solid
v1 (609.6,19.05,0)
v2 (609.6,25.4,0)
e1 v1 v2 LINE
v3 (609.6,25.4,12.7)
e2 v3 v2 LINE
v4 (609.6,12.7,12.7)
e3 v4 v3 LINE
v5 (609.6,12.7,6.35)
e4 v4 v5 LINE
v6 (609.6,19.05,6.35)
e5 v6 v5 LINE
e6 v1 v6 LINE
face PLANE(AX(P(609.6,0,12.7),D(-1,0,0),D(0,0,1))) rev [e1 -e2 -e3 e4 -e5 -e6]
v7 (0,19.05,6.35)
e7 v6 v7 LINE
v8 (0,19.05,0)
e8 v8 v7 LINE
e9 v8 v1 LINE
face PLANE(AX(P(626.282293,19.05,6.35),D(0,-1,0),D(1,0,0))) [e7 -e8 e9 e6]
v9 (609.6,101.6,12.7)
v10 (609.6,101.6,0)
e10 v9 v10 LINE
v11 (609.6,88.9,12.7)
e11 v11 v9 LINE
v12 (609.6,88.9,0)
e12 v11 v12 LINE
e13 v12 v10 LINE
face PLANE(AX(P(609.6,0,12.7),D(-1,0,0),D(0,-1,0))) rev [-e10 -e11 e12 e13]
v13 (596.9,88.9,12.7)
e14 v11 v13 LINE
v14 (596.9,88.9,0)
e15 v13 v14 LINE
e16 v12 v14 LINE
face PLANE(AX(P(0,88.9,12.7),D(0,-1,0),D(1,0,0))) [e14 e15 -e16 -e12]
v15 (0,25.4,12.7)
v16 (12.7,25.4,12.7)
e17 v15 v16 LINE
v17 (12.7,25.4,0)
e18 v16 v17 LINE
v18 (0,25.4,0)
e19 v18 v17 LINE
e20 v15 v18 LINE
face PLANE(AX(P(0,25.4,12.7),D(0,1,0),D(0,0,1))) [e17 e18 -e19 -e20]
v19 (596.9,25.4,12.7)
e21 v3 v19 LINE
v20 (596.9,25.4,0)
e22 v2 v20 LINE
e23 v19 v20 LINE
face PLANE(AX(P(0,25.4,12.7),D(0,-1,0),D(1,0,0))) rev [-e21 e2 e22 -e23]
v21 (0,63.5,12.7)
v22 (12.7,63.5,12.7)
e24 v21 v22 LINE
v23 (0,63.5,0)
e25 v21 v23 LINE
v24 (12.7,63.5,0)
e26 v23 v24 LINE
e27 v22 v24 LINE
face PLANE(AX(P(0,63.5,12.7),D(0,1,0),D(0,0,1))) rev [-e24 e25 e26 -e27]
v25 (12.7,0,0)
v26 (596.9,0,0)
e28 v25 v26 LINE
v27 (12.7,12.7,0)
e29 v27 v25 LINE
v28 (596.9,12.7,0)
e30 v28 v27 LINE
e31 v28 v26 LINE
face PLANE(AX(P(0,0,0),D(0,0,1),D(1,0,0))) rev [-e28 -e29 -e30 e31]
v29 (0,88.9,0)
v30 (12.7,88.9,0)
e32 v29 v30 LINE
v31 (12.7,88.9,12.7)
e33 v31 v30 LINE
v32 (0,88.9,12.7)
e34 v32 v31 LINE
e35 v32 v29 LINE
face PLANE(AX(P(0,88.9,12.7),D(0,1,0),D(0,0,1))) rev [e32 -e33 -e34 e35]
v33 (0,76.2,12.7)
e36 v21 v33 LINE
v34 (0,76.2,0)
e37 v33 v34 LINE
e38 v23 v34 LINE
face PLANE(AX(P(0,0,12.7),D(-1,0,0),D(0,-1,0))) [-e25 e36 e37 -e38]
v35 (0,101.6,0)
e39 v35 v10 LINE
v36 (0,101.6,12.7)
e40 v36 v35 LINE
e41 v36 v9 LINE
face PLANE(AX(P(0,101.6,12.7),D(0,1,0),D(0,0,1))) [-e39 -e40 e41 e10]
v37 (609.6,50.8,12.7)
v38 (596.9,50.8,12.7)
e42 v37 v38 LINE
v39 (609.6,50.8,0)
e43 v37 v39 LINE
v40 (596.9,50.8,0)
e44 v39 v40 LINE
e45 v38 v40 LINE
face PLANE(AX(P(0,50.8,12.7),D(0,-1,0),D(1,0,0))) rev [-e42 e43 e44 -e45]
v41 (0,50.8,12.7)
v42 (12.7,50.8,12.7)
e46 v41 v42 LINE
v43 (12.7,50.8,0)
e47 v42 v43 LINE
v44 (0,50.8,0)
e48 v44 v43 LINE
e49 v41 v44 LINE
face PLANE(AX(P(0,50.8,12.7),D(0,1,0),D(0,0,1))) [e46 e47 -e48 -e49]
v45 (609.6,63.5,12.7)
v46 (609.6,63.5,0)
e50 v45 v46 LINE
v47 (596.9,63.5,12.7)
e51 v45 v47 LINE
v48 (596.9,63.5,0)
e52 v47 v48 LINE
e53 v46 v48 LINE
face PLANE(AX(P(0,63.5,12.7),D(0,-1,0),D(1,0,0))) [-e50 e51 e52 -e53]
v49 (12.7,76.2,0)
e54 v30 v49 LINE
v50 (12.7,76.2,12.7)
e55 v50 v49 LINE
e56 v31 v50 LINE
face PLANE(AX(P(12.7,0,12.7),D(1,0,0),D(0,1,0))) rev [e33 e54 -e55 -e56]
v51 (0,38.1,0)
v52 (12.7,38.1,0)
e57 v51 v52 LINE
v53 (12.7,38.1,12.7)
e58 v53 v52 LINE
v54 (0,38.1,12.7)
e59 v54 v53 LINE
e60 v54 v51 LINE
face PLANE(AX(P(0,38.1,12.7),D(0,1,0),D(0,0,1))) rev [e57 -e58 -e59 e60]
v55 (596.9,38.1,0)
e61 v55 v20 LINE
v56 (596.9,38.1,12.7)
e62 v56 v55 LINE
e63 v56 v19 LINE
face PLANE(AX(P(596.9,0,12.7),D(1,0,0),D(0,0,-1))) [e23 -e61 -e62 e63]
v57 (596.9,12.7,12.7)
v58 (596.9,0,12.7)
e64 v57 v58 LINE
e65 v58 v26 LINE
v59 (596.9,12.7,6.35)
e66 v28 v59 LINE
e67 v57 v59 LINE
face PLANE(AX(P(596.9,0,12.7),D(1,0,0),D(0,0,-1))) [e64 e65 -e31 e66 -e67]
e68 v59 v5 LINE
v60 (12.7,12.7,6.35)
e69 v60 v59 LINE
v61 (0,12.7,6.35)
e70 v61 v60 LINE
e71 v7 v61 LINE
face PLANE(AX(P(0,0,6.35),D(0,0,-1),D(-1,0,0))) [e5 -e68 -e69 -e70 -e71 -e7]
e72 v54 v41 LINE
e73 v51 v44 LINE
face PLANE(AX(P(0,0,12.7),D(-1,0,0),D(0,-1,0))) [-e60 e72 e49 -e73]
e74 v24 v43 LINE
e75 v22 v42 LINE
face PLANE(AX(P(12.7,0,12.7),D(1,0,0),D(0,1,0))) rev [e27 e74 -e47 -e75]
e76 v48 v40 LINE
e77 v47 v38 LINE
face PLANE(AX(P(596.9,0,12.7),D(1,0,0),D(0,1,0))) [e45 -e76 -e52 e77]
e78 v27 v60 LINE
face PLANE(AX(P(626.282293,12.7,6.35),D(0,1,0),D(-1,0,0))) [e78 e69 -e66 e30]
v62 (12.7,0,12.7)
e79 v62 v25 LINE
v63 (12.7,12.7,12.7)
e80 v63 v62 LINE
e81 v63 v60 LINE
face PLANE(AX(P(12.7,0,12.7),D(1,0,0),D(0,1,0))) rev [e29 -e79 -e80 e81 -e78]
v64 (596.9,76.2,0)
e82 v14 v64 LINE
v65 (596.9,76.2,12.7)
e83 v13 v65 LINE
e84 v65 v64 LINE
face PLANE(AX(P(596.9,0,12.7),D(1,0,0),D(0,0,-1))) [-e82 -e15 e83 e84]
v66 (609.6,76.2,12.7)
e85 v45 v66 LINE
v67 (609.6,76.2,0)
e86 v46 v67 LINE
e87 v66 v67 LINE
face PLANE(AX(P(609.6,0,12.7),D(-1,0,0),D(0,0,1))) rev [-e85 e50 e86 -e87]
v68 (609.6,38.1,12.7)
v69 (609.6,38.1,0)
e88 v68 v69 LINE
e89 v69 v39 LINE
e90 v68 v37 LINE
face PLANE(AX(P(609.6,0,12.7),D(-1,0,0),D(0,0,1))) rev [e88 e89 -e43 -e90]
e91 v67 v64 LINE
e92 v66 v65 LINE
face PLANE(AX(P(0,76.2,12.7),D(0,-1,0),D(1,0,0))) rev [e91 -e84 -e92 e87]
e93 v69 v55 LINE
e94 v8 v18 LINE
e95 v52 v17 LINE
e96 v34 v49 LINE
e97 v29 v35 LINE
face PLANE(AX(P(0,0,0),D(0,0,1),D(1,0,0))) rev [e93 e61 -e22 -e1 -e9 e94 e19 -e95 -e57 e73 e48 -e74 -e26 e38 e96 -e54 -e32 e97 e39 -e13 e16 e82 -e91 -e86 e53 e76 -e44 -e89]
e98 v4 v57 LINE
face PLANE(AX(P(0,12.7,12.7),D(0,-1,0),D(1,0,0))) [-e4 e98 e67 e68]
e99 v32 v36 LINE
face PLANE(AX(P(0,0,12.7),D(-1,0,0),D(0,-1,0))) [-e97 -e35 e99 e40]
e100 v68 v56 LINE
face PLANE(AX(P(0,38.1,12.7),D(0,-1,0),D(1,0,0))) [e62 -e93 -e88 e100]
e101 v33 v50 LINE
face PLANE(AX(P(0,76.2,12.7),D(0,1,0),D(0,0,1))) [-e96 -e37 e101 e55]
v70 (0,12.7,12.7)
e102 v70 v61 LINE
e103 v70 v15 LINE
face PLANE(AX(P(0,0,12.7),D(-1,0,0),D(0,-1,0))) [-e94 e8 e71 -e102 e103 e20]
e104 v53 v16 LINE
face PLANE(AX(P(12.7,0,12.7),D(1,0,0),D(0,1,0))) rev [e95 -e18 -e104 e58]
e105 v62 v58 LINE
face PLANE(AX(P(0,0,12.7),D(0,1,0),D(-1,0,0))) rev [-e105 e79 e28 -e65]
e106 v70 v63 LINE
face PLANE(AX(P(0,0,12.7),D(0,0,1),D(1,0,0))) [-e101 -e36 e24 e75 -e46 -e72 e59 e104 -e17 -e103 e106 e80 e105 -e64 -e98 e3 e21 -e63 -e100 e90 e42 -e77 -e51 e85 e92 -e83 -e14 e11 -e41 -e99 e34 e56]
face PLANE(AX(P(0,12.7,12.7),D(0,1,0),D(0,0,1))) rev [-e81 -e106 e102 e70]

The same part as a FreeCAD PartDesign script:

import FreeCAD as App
import Part
import Sketcher
Q = App.Units.Quantity


def add_polygon(sketch, points):
    """Adds a closed chain of lines whose ends are joined by coincident constraints."""
    first, n = sketch.GeometryCount, len(points)
    for a, b in zip(points, points[1:] + points[:1]):
        sketch.addGeometry(Part.LineSegment(App.Vector(*a, 0), App.Vector(*b, 0)), False)
    for i in range(n):
        sketch.addConstraint(Sketcher.Constraint("Coincident", first + i, 2, first + (i + 1) % n, 1))

doc = App.newDocument("Part")
body = doc.addObject("PartDesign::Body", "Body")

# Sketch on XY plane
sketch1 = body.newObject("Sketcher::SketchObject", "Sketch")
sketch1.AttachmentSupport = (doc.getObject("XY_Plane"), [""])
sketch1.MapMode = "FlatFace"
add_polygon(sketch1, [(597, 89), (610, 89), (610, 102), (0, 102), (0, 89), (13, 89), (13, 76), (0, 76), (0, 64), (13, 64), (13, 51), (0, 51), (0, 38), (13, 38), (13, 25), (0, 25), (0, 13), (13, 13), (13, 0), (597, 0), (597, 13), (610, 13), (610, 25), (597, 25), (597, 38), (610, 38), (610, 51), (597, 51), (597, 64), (610, 64), (610, 76), (597, 76)])  # lines 0-31
sketch1.addConstraint(Sketcher.Constraint("Horizontal", 0))
sketch1.addConstraint(Sketcher.Constraint("Vertical", 1))
sketch1.addConstraint(Sketcher.Constraint("Horizontal", 2))
sketch1.addConstraint(Sketcher.Constraint("Vertical", 3))
sketch1.addConstraint(Sketcher.Constraint("Horizontal", 4))
sketch1.addConstraint(Sketcher.Constraint("Vertical", 5))
sketch1.addConstraint(Sketcher.Constraint("Horizontal", 6))
sketch1.addConstraint(Sketcher.Constraint("Vertical", 7))
sketch1.addConstraint(Sketcher.Constraint("Horizontal", 8))
sketch1.addConstraint(Sketcher.Constraint("Vertical", 9))
sketch1.addConstraint(Sketcher.Constraint("Horizontal", 10))
sketch1.addConstraint(Sketcher.Constraint("Vertical", 11))
sketch1.addConstraint(Sketcher.Constraint("Horizontal", 12))
sketch1.addConstraint(Sketcher.Constraint("Vertical", 13))
sketch1.addConstraint(Sketcher.Constraint("Horizontal", 14))
sketch1.addConstraint(Sketcher.Constraint("Vertical", 15))
sketch1.addConstraint(Sketcher.Constraint("Horizontal", 16))
sketch1.addConstraint(Sketcher.Constraint("Vertical", 17))
sketch1.addConstraint(Sketcher.Constraint("Horizontal", 18))
sketch1.addConstraint(Sketcher.Constraint("Vertical", 19))
sketch1.addConstraint(Sketcher.Constraint("Horizontal", 20))
sketch1.addConstraint(Sketcher.Constraint("Vertical", 21))
sketch1.addConstraint(Sketcher.Constraint("Horizontal", 22))
sketch1.addConstraint(Sketcher.Constraint("Vertical", 23))
sketch1.addConstraint(Sketcher.Constraint("Horizontal", 24))
sketch1.addConstraint(Sketcher.Constraint("Vertical", 25))
sketch1.addConstraint(Sketcher.Constraint("Horizontal", 26))
sketch1.addConstraint(Sketcher.Constraint("Vertical", 27))
sketch1.addConstraint(Sketcher.Constraint("Horizontal", 28))
sketch1.addConstraint(Sketcher.Constraint("Vertical", 29))
sketch1.addConstraint(Sketcher.Constraint("Horizontal", 30))
sketch1.addConstraint(Sketcher.Constraint("Vertical", 31))
sketch1.addConstraint(Sketcher.Constraint("PointOnObject", 2, 2, -2))
sketch1.addConstraint(Sketcher.Constraint("PointOnObject", 6, 2, -2))
sketch1.addConstraint(Sketcher.Constraint("PointOnObject", 10, 2, -2))
sketch1.addConstraint(Sketcher.Constraint("PointOnObject", 14, 2, -2))
sketch1.addConstraint(Sketcher.Constraint("PointOnObject", 17, 2, -1))
sketch1.addConstraint(Sketcher.Constraint("Horizontal", 0, 2, 3, 2))
sketch1.addConstraint(Sketcher.Constraint("Horizontal", 16, 2, 19, 2))
sketch1.addConstraint(Sketcher.Constraint("Horizontal", 14, 2, 21, 2))
sketch1.addConstraint(Sketcher.Constraint("Horizontal", 12, 2, 23, 2))
sketch1.addConstraint(Sketcher.Constraint("Horizontal", 10, 2, 25, 2))
sketch1.addConstraint(Sketcher.Constraint("Horizontal", 8, 2, 27, 2))
sketch1.addConstraint(Sketcher.Constraint("Horizontal", 6, 2, 29, 2))
sketch1.addConstraint(Sketcher.Constraint("Vertical", 5, 2, 8, 2))
sketch1.addConstraint(Sketcher.Constraint("Vertical", 9, 2, 12, 2))
sketch1.addConstraint(Sketcher.Constraint("Vertical", 13, 2, 16, 2))
sketch1.addConstraint(Sketcher.Constraint("Vertical", 1, 2, 20, 2))
sketch1.addConstraint(Sketcher.Constraint("Vertical", 19, 2, 22, 2))
sketch1.addConstraint(Sketcher.Constraint("Vertical", 21, 2, 24, 2))
sketch1.addConstraint(Sketcher.Constraint("Vertical", 23, 2, 26, 2))
sketch1.addConstraint(Sketcher.Constraint("Vertical", 25, 2, 28, 2))
sketch1.addConstraint(Sketcher.Constraint("Vertical", 27, 2, 30, 2))
sketch1.addConstraint(Sketcher.Constraint("Equal", 0, 4))
sketch1.addConstraint(Sketcher.Constraint("Equal", 30, 1))
sketch1.addConstraint(Sketcher.Constraint("Equal", 3, 5))
sketch1.addConstraint(Sketcher.Constraint("Equal", 5, 7))
sketch1.addConstraint(Sketcher.Constraint("Equal", 7, 9))
sketch1.addConstraint(Sketcher.Constraint("Equal", 9, 11))
sketch1.addConstraint(Sketcher.Constraint("Equal", 11, 13))
sketch1.addConstraint(Sketcher.Constraint("Equal", 13, 15))
sketch1.addConstraint(Sketcher.Constraint("Equal", 15, 17))
sketch1.addConstraint(Sketcher.Constraint("DistanceX", 2, 2, 2, 1, Q("24 in")))
sketch1.addConstraint(Sketcher.Constraint("DistanceX", 18, 1, 18, 2, Q("23 in")))
pad1 = body.newObject("PartDesign::Pad", "Pad")
pad1.Profile = sketch1
pad1.Length = Q("0.5 in")

# Sketch on XY plane
sketch2 = body.newObject("Sketcher::SketchObject", "Sketch001")
sketch2.AttachmentSupport = (doc.getObject("XY_Plane"), [""])
sketch2.MapMode = "FlatFace"
add_polygon(sketch2, [(-11, 19), (-11, 13), (626, 13), (626, 19)])  # lines 0-3
sketch2.addConstraint(Sketcher.Constraint("Vertical", 0))
sketch2.addConstraint(Sketcher.Constraint("Horizontal", 1))
sketch2.addConstraint(Sketcher.Constraint("Vertical", 2))
sketch2.addConstraint(Sketcher.Constraint("Horizontal", 3))
sketch2.addConstraint(Sketcher.Constraint("DistanceY", 0, 2, 0, 1, Q("0.25 in")))
sketch2.addConstraint(Sketcher.Constraint("DistanceY", -1, 1, 0, 2, Q("0.5 in")))
sketch2.addConstraint(Sketcher.Constraint("DistanceX", 0, 2, -1, 1, Q("10.882601 mm")))
sketch2.addConstraint(Sketcher.Constraint("DistanceX", 1, 1, 1, 2, Q("637.164895 mm")))
pocket1 = body.newObject("PartDesign::Pocket", "Pocket")
pocket1.Profile = sketch2
pocket1.Length = Q("0.25 in")
pocket1.Reversed = True

doc.recompute()
